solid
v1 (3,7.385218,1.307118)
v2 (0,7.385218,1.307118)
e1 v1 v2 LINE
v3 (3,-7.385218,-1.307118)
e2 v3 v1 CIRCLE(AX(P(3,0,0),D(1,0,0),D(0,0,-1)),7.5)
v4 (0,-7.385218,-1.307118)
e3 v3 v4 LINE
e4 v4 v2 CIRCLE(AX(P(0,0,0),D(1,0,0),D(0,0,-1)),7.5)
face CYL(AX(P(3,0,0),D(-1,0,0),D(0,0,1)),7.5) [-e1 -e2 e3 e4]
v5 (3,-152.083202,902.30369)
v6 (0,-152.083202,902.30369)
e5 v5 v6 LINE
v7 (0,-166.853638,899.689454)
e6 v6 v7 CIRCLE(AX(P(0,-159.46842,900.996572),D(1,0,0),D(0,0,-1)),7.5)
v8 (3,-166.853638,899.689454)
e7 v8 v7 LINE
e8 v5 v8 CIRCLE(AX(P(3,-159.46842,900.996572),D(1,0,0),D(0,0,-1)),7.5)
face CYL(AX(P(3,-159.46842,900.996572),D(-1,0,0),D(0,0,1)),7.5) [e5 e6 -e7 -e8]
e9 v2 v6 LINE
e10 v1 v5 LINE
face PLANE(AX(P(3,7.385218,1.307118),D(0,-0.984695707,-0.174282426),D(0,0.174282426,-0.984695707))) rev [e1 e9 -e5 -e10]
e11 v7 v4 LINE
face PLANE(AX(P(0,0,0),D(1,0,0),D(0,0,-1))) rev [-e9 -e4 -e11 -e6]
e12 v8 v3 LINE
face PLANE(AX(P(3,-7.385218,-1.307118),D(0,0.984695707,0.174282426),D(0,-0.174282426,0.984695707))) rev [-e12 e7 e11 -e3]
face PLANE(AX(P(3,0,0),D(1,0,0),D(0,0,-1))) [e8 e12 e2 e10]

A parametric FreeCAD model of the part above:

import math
import FreeCAD as App
import Part
import Sketcher

doc = App.newDocument("Part")
body = doc.addObject("PartDesign::Body", "Body")

# Sketch on YZ plane
sketch1 = doc.addObject("Sketcher::SketchObject", "Sketch")
body.addObject(sketch1)
sketch1.AttachmentSupport = (doc.YZ_Plane, [""])
sketch1.MapMode = "FlatFace"
sketch1.addGeometry([
    Part.LineSegment(App.Vector(-167, 900, 0), App.Vector(-7, -1, 0)),
    Part.ArcOfCircle(Part.Circle(App.Vector(0, 0, 0), App.Vector(0, 0, 1), 8), math.radians(-170), math.radians(10)),
    Part.LineSegment(App.Vector(7, 1, 0), App.Vector(-152, 902, 0)),
    Part.ArcOfCircle(Part.Circle(App.Vector(-159, 901, 0), App.Vector(0, 0, 1), 8), math.radians(10), math.radians(190)),
], False)
sketch1.addConstraint([
    Sketcher.Constraint("Tangent", 0, 2, 1, 1),
    Sketcher.Constraint("Tangent", 1, 2, 2, 1),
    Sketcher.Constraint("Tangent", 2, 2, 3, 1),
    Sketcher.Constraint("Tangent", 3, 2, 0, 1),
    Sketcher.Constraint("Coincident", 1, 3, -1, 1),
    Sketcher.Constraint("Equal", 1, 3),
    Sketcher.Constraint("Radius", 1, 7.5),
    Sketcher.Constraint("Distance", 0, 915.0),
    Sketcher.Constraint("DistanceX", 3, 3, -1, 1, 159.46842),
])
pad1 = doc.addObject("PartDesign::Pad", "Pad")
body.addObject(pad1)
pad1.Profile = sketch1
pad1.Length = 3

doc.recompute()
